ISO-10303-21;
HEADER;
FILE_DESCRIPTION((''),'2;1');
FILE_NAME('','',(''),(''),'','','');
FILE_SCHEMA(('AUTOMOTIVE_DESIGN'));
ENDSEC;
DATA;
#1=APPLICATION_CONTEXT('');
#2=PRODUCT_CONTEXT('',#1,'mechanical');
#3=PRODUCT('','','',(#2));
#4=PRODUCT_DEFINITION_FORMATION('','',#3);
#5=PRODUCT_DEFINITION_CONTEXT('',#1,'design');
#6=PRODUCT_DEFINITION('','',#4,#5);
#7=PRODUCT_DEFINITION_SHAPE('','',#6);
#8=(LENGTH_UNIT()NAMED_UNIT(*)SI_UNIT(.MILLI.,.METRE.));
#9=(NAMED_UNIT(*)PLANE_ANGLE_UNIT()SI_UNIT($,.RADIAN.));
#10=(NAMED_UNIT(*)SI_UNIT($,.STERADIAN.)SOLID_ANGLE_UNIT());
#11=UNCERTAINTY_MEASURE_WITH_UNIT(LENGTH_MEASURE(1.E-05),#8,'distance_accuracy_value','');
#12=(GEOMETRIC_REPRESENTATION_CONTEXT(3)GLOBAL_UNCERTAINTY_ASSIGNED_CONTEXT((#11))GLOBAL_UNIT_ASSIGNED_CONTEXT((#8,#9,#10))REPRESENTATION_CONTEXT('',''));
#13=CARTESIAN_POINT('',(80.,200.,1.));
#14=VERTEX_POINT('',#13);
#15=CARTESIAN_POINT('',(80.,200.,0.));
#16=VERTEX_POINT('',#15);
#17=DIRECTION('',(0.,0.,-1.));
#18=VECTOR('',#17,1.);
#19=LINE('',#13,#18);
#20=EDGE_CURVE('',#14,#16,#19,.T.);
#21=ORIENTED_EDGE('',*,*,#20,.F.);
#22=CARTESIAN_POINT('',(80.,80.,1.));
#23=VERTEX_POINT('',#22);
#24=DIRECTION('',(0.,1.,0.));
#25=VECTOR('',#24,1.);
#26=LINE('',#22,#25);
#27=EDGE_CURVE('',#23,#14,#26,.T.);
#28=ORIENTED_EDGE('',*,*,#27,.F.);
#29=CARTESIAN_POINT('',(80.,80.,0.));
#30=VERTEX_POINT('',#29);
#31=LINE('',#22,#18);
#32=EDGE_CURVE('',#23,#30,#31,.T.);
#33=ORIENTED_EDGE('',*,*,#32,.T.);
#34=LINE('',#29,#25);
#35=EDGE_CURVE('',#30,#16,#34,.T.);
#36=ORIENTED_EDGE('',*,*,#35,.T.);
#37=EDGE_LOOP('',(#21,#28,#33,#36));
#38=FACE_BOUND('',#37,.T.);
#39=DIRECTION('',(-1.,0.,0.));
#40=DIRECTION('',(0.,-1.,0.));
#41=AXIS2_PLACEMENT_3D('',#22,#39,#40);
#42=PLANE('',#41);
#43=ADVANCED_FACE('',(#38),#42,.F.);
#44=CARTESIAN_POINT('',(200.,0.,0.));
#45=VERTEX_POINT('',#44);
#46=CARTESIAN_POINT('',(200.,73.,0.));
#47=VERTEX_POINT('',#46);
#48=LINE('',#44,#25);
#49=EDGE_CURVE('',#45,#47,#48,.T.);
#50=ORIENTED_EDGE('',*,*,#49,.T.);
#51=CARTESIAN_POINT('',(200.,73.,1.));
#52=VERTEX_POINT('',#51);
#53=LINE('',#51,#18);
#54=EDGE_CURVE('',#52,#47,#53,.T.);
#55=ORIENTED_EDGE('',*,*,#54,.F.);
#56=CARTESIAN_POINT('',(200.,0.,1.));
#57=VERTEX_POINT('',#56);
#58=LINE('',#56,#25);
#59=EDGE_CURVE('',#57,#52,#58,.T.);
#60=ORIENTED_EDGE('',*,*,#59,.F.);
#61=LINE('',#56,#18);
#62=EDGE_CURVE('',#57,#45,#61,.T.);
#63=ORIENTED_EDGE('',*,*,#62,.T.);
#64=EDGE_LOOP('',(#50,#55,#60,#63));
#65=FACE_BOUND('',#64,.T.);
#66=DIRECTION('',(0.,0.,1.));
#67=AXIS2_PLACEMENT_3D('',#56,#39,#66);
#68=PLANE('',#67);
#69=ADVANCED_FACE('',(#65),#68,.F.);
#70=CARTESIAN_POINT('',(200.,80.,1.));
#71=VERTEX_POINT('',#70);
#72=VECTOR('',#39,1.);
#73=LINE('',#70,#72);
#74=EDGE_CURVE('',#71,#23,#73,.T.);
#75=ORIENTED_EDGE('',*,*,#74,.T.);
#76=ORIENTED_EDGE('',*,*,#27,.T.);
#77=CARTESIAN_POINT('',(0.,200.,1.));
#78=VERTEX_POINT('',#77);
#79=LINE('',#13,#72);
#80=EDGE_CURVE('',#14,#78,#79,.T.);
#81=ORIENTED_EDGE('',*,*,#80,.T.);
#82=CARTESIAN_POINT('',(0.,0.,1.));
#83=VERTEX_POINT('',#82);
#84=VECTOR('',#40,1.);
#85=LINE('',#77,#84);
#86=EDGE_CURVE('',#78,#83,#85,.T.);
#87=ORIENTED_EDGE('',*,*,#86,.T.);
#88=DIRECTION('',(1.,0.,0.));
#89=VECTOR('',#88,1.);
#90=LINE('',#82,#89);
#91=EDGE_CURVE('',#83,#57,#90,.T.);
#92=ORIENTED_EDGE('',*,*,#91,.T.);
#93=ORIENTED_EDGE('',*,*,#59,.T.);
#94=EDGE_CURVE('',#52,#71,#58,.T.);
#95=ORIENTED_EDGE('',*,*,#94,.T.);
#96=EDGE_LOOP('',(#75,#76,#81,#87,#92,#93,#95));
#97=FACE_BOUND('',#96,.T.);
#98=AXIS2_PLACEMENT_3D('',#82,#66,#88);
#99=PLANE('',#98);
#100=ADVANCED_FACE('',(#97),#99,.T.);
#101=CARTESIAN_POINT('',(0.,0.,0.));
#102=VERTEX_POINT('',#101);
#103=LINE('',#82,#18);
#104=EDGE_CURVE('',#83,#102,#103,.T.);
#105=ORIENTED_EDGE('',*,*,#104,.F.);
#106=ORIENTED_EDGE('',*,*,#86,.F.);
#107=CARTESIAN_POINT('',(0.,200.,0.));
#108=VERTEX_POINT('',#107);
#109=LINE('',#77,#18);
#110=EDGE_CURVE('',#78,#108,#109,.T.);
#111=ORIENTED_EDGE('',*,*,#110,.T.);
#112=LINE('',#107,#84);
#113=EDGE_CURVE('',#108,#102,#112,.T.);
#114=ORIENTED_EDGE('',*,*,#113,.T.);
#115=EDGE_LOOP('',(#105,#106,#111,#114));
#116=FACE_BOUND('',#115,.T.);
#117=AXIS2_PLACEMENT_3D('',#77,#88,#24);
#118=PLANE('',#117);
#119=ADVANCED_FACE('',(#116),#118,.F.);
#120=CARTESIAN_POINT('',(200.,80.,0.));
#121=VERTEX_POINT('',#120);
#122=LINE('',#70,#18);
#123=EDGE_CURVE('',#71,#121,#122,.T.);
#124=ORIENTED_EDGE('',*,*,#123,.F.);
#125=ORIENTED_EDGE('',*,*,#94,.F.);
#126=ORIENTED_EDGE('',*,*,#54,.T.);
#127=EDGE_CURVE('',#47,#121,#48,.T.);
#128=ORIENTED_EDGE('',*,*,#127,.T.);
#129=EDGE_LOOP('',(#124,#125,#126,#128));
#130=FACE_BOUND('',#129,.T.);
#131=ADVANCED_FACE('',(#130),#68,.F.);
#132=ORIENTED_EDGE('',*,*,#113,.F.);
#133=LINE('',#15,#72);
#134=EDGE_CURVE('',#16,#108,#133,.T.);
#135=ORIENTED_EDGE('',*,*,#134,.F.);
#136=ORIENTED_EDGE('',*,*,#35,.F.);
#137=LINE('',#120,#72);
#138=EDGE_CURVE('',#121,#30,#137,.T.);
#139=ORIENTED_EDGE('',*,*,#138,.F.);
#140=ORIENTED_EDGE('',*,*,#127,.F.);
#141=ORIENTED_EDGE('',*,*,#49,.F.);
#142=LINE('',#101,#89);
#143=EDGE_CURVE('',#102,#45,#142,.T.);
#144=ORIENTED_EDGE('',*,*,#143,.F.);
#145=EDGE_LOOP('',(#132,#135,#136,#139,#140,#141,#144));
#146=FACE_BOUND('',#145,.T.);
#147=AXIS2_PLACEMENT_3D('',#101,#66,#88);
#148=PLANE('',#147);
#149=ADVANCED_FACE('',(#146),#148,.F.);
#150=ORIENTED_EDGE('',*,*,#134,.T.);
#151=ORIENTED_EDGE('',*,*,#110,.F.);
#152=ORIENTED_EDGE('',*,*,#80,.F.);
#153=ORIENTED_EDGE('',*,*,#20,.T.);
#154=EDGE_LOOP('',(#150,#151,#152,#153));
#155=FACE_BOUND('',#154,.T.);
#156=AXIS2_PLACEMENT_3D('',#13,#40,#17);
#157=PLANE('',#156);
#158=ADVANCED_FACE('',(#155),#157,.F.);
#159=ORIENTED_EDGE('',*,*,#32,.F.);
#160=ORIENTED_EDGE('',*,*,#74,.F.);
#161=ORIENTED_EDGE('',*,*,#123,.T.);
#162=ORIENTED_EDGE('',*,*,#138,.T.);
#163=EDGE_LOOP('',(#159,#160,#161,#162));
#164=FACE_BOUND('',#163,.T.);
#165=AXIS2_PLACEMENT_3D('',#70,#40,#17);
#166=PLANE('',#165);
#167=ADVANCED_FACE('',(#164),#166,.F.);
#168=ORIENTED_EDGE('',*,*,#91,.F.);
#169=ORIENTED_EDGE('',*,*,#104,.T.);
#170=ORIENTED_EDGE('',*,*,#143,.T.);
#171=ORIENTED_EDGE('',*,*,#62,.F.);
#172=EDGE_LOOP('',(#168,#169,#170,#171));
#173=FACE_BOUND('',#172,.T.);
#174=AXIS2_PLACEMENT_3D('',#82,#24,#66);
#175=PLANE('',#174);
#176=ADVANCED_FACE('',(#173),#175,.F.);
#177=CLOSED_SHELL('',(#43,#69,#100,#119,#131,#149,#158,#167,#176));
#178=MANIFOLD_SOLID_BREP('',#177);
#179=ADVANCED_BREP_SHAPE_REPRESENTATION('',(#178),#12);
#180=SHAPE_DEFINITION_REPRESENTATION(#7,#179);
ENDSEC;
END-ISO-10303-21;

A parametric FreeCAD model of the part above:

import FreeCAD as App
import Part
import Sketcher

doc = App.newDocument("Part")
params = doc.addObject("Spreadsheet::Sheet", "Params")
for row, (alias, value) in enumerate([
    ("sketch1_width", "200 mm"),
    ("sketch1_width2", "120 mm"),
    ("pad1_length", "1 mm"),
], start=1):
    params.set(f"A{row}", alias)
    params.set(f"B{row}", "=" + value)
    params.setAlias(f"B{row}", alias)

body = doc.addObject("PartDesign::Body", "Body")

# Sketch on XY plane
sketch1 = doc.addObject("Sketcher::SketchObject", "Sketch")
body.addObject(sketch1)
sketch1.AttachmentSupport = (doc.XY_Plane, [""])
sketch1.MapMode = "FlatFace"
sketch1.addGeometry([
    Part.LineSegment(App.Vector(0, 0, 0), App.Vector(200, 0, 0)),  # 0
    Part.LineSegment(App.Vector(200, 0, 0), App.Vector(200, 80, 0)),  # 1
    Part.LineSegment(App.Vector(200, 80, 0), App.Vector(80, 80, 0)),  # 2
    Part.LineSegment(App.Vector(80, 80, 0), App.Vector(80, 200, 0)),  # 3
    Part.LineSegment(App.Vector(80, 200, 0), App.Vector(0, 200, 0)),  # 4
    Part.LineSegment(App.Vector(0, 200, 0), App.Vector(0, 0, 0)),  # 5
], False)
sketch1.addConstraint([
    Sketcher.Constraint("Coincident", 0, 2, 1, 1),
    Sketcher.Constraint("Coincident", 1, 2, 2, 1),
    Sketcher.Constraint("Coincident", 2, 2, 3, 1),
    Sketcher.Constraint("Coincident", 3, 2, 4, 1),
    Sketcher.Constraint("Coincident", 4, 2, 5, 1),
    Sketcher.Constraint("Coincident", 5, 2, 0, 1),
    Sketcher.Constraint("Horizontal", 0),
    Sketcher.Constraint("Vertical", 1),
    Sketcher.Constraint("Horizontal", 2),
    Sketcher.Constraint("Vertical", 3),
    Sketcher.Constraint("Horizontal", 4),
    Sketcher.Constraint("Vertical", 5),
    Sketcher.Constraint("Coincident", 5, 2, -1, 1),
    Sketcher.Constraint("Equal", 4, 1),
    Sketcher.Constraint("Equal", 2, 3),
    Sketcher.Constraint("DistanceX", 0, 1, 0, 2, 200.0),
    Sketcher.Constraint("DistanceX", 2, 2, 2, 1, 120.0),
])
sketch1.setExpression("Constraints[15]", "Params.sketch1_width")
sketch1.setExpression("Constraints[16]", "Params.sketch1_width2")
pad1 = doc.addObject("PartDesign::Pad", "Pad")
body.addObject(pad1)
pad1.Profile = sketch1
pad1.setExpression("Length", "Params.pad1_length")

doc.recompute()
